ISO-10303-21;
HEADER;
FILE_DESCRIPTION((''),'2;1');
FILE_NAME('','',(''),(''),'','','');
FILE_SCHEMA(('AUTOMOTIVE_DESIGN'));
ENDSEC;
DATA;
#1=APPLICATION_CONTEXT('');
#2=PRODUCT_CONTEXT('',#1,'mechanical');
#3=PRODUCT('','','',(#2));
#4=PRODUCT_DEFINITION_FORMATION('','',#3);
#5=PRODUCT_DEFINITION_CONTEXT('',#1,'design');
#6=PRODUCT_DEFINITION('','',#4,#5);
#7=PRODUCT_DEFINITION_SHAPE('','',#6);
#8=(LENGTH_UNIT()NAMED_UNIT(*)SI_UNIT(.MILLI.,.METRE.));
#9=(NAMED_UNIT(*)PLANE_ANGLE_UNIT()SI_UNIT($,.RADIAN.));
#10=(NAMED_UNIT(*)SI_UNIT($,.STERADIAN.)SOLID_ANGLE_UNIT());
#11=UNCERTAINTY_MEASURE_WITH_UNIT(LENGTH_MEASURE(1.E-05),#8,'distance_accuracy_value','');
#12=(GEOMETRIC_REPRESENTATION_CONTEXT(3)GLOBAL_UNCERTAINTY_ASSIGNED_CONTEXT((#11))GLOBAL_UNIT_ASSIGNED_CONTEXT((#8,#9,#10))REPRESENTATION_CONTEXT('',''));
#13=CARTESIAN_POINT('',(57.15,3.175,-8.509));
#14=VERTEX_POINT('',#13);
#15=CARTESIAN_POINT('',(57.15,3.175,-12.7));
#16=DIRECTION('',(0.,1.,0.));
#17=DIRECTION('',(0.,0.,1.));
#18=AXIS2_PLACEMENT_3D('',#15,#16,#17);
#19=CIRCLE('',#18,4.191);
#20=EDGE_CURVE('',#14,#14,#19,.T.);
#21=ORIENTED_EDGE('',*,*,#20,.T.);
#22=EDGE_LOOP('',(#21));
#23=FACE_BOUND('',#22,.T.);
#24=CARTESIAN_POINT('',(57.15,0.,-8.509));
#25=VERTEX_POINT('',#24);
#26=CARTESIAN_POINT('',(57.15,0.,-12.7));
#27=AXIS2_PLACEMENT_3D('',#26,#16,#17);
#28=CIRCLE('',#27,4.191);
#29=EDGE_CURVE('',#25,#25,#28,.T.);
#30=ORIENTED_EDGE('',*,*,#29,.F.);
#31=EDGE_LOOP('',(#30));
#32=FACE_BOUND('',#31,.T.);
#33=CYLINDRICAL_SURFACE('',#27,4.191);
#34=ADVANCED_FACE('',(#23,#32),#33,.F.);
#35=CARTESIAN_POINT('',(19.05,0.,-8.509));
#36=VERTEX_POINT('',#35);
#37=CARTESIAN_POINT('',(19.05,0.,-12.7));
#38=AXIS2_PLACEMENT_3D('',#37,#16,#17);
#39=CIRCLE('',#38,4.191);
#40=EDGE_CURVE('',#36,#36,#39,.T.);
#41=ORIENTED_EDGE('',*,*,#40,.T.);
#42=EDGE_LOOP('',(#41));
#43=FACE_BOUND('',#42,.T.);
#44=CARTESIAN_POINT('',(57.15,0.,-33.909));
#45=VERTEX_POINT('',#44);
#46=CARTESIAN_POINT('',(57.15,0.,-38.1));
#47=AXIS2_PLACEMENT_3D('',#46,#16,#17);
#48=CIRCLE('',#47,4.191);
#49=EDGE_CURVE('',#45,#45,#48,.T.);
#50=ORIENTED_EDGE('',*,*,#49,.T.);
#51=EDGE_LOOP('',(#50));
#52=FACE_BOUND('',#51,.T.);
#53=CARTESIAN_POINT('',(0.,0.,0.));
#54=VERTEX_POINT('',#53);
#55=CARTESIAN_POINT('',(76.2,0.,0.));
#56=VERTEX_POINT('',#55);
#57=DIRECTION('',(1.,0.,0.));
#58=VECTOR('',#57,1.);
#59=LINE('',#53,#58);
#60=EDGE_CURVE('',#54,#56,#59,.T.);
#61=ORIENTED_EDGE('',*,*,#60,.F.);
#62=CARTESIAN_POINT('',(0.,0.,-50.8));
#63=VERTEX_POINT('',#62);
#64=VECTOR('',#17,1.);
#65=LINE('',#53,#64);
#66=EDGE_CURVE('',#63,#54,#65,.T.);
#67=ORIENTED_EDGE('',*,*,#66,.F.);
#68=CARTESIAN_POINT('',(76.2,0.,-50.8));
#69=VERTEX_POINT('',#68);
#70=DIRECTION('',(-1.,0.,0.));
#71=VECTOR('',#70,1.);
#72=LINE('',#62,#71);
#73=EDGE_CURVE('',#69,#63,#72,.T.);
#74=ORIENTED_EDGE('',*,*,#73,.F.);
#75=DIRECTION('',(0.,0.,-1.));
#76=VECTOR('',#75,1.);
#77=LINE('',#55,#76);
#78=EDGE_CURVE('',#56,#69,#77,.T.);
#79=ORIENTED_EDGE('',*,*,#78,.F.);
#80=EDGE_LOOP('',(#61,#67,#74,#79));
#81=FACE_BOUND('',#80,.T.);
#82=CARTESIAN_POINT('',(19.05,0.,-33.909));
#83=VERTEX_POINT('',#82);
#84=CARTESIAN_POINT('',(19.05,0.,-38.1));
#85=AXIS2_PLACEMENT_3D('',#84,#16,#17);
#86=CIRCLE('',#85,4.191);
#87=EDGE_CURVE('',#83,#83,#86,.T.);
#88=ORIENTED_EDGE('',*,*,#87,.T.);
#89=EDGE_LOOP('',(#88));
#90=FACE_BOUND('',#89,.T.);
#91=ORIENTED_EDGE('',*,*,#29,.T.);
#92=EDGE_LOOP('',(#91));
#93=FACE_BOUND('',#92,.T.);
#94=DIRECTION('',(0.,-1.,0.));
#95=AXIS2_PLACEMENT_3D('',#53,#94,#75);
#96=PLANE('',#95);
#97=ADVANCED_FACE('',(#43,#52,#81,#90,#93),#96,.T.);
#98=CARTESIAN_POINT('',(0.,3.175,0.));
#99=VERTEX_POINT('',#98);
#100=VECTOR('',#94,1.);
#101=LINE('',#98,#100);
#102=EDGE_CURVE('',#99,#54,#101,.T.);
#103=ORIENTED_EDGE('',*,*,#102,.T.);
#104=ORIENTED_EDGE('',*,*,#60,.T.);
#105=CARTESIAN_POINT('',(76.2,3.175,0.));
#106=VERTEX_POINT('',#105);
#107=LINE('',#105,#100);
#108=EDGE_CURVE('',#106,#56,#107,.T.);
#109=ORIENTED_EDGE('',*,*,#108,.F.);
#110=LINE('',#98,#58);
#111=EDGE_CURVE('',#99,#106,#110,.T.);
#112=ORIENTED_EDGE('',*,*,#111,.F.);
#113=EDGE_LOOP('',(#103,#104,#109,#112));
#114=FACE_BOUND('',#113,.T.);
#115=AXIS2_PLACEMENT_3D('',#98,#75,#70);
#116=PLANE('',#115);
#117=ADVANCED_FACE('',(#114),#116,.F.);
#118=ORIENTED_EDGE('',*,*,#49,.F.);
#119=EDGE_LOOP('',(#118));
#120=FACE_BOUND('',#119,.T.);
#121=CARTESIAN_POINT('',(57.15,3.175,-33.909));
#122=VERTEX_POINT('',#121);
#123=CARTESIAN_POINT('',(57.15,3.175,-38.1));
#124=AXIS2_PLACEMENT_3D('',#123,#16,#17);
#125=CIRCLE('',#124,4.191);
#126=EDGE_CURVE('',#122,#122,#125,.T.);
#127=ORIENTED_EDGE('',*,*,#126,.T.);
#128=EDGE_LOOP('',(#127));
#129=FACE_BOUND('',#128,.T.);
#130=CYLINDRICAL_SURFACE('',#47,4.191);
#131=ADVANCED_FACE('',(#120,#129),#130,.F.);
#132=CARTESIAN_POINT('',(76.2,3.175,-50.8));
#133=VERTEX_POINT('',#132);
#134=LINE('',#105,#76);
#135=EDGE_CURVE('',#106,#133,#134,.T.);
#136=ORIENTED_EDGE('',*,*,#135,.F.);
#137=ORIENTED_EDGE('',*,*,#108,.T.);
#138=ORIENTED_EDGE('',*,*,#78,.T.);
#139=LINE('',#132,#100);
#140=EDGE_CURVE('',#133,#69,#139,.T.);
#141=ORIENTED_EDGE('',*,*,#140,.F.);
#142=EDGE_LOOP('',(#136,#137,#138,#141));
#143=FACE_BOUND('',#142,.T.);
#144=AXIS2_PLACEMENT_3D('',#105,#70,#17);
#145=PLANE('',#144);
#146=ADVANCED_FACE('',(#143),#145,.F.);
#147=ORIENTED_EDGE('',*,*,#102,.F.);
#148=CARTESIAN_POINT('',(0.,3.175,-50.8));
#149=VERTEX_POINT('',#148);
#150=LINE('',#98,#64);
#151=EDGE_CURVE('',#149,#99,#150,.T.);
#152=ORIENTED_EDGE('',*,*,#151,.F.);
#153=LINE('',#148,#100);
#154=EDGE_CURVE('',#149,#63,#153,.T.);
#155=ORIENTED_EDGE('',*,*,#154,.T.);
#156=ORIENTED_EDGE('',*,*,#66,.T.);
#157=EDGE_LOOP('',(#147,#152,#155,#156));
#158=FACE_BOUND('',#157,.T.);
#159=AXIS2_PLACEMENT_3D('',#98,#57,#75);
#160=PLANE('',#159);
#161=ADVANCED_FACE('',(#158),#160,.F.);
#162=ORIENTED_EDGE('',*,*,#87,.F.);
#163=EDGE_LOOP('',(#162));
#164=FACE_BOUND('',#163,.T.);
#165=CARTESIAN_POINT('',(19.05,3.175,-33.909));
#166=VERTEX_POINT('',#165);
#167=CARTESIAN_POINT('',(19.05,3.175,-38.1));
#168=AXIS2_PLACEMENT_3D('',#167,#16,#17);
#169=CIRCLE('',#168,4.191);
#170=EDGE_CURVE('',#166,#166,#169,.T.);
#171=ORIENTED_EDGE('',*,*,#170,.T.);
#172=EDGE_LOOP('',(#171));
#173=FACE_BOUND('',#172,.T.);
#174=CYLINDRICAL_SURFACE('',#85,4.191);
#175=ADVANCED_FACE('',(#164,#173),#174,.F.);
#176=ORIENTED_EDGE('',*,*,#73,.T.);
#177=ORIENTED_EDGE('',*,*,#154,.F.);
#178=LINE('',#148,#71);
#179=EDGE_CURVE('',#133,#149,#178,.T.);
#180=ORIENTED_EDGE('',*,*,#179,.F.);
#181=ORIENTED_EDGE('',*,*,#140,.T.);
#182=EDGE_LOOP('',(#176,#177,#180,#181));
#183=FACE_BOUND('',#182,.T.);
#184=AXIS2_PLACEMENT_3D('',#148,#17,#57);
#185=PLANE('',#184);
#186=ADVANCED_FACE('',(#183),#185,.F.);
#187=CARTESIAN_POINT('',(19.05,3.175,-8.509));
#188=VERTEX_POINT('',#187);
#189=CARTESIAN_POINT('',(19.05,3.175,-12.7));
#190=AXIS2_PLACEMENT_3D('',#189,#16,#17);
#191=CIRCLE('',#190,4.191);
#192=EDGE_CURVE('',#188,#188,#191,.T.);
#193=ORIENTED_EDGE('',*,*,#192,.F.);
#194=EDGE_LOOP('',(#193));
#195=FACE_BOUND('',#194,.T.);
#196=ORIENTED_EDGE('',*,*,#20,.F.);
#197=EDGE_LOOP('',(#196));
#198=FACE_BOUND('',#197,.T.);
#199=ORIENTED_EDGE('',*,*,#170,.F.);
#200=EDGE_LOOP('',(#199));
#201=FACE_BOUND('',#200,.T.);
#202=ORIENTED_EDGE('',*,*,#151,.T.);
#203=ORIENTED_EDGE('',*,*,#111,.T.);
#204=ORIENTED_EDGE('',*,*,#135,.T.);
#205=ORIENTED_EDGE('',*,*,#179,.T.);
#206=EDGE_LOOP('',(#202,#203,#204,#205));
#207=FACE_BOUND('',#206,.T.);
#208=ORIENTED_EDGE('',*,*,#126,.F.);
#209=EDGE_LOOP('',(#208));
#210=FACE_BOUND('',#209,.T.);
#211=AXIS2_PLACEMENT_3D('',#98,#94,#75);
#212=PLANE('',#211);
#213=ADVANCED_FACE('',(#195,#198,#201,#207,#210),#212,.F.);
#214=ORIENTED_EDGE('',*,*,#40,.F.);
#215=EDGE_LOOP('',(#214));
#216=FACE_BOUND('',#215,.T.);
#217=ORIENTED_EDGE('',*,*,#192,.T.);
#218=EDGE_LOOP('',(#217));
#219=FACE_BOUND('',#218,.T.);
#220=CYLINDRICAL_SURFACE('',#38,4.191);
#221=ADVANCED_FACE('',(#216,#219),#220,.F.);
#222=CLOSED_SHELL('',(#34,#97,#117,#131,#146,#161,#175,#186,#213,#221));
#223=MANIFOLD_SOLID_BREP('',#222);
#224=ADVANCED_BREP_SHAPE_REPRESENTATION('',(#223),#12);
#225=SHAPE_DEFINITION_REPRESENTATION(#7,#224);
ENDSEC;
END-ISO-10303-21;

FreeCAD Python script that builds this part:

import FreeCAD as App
import Part
import Sketcher

V = App.Vector
Q = App.Units.Quantity

doc = App.newDocument("Part")
params = doc.addObject("Spreadsheet::Sheet", "Params")
for row, (alias, value) in enumerate([
    ("sketch1_width", "3 in"),
    ("sketch1_height", "2 in"),
    ("pad1_length", "0.125 in"),
    ("sketch2_diameter", "0.33 in"),
], start=1):
    params.set(f"A{row}", alias)
    params.set(f"B{row}", "=" + value)
    params.setAlias(f"B{row}", alias)

body = doc.addObject("PartDesign::Body", "Body")

sketch1 = doc.addObject("Sketcher::SketchObject", "Sketch")
body.addObject(sketch1)
sketch1.AttachmentSupport = (doc.XZ_Plane, [""])
sketch1.MapMode = "FlatFace"
sketch1.addGeometry(Part.LineSegment(V(0, -51, 0), V(0, 0, 0)), False)
sketch1.addGeometry(Part.LineSegment(V(0, 0, 0), V(76, 0, 0)), False)
sketch1.addGeometry(Part.LineSegment(V(76, 0, 0), V(76, -51, 0)), False)
sketch1.addGeometry(Part.LineSegment(V(76, -51, 0), V(0, -51, 0)), False)
sketch1.addConstraint(Sketcher.Constraint("Coincident", 0, 2, 1, 1))
sketch1.addConstraint(Sketcher.Constraint("Coincident", 1, 2, 2, 1))
sketch1.addConstraint(Sketcher.Constraint("Coincident", 2, 2, 3, 1))
sketch1.addConstraint(Sketcher.Constraint("Coincident", 3, 2, 0, 1))
sketch1.addConstraint(Sketcher.Constraint("Vertical", 0))
sketch1.addConstraint(Sketcher.Constraint("Horizontal", 1))
sketch1.addConstraint(Sketcher.Constraint("Vertical", 2))
sketch1.addConstraint(Sketcher.Constraint("Horizontal", 3))
sketch1.addConstraint(Sketcher.Constraint("Coincident", 0, 2, -1, 1))
sketch1.addConstraint(Sketcher.Constraint("DistanceX", 1, 1, 1, 2, Q("3 in")))
sketch1.addConstraint(Sketcher.Constraint("DistanceY", 0, 1, 0, 2, Q("2 in")))
sketch1.setExpression("Constraints[9]", "Params.sketch1_width")
sketch1.setExpression("Constraints[10]", "Params.sketch1_height")
pad1 = doc.addObject("PartDesign::Pad", "Pad")
body.addObject(pad1)
pad1.Profile = sketch1
pad1.setExpression("Length", "Params.pad1_length")
pad1.Reversed = True

sketch2 = doc.addObject("Sketcher::SketchObject", "Sketch001")
body.addObject(sketch2)
sketch2.AttachmentSupport = (doc.XZ_Plane, [""])
sketch2.MapMode = "FlatFace"
sketch2.AttachmentOffset = App.Placement(V(0, 0, -0.125 * 25.4), App.Rotation())
sketch2.addGeometry(Part.Circle(V(19.1, -38.1, 0), V(0, 0, 1), 4.2), False)
sketch2.addGeometry(Part.Circle(V(19.1, -12.7, 0), V(0, 0, 1), 4.2), False)
sketch2.addGeometry(Part.Circle(V(57.1, -38.1, 0), V(0, 0, 1), 4.2), False)
sketch2.addGeometry(Part.Circle(V(57.1, -12.7, 0), V(0, 0, 1), 4.2), False)
sketch2.addConstraint(Sketcher.Constraint("Equal", 0, 1))
sketch2.addConstraint(Sketcher.Constraint("Equal", 1, 2))
sketch2.addConstraint(Sketcher.Constraint("Equal", 2, 3))
sketch2.addConstraint(Sketcher.Constraint("Horizontal", 0, 3, 2, 3))
sketch2.addConstraint(Sketcher.Constraint("Horizontal", 1, 3, 3, 3))
sketch2.addConstraint(Sketcher.Constraint("Vertical", 0, 3, 1, 3))
sketch2.addConstraint(Sketcher.Constraint("Vertical", 2, 3, 3, 3))
sketch2.addConstraint(Sketcher.Constraint("Diameter", 0, Q("0.33 in")))
sketch2.addConstraint(Sketcher.Constraint("DistanceY", 0, 3, 1, 3, Q("1 in")))
sketch2.addConstraint(Sketcher.Constraint("DistanceY", 0, 3, -1, 1, Q("1.5 in")))
sketch2.addConstraint(Sketcher.Constraint("DistanceX", 0, 3, 2, 3, Q("1.5 in")))
sketch2.addConstraint(Sketcher.Constraint("DistanceX", -1, 1, 0, 3, Q("0.75 in")))
sketch2.setExpression("Constraints[7]", "Params.sketch2_diameter")
pocket1 = doc.addObject("PartDesign::Pocket", "Pocket")
body.addObject(pocket1)
pocket1.Profile = sketch2
pocket1.Type = "ThroughAll"
pocket1.Reversed = True

doc.recompute()
